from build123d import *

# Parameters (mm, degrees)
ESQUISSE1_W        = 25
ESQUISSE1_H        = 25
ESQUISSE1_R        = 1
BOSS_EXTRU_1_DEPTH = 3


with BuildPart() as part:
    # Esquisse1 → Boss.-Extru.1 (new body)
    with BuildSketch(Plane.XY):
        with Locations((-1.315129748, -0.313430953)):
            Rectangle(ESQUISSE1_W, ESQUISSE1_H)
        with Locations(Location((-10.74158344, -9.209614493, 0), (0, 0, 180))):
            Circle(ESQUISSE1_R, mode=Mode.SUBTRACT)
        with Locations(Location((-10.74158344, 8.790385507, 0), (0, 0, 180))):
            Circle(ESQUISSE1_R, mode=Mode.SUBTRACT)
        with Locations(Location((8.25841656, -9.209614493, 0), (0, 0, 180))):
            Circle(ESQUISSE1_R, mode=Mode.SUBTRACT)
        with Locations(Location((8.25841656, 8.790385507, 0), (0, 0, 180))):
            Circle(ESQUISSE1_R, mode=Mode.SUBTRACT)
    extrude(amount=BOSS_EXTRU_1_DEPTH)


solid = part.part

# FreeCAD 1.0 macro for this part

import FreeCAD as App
import Part
import Sketcher
from FreeCAD import Vector


def add_polygon(sketch, points):
    """Adds a closed chain of lines whose ends are joined by coincident constraints."""
    first, n = sketch.GeometryCount, len(points)
    for a, b in zip(points, points[1:] + points[:1]):
        sketch.addGeometry(Part.LineSegment(App.Vector(*a, 0), App.Vector(*b, 0)), False)
    for i in range(n):
        sketch.addConstraint(Sketcher.Constraint("Coincident", first + i, 2, first + (i + 1) % n, 1))

doc = App.newDocument("Part")
body = doc.addObject("PartDesign::Body", "Body")

# Sketch on XY plane
sketch1 = body.newObject("Sketcher::SketchObject", "Sketch")
sketch1.AttachmentSupport = (doc.getObject("XY_Plane"), [""])
sketch1.MapMode = "FlatFace"
add_polygon(sketch1, [(-13.8, 12.2), (-13.8, -12.8), (11.2, -12.8), (11.2, 12.2)])  # lines 0-3
sketch1.addGeometry(Part.Circle(Vector(-10.7, -9.2, 0), Vector(0, 0, 1), 1), False)  # 4
sketch1.addGeometry(Part.Circle(Vector(8.3, -9.2, 0), Vector(0, 0, 1), 1), False)  # 5
sketch1.addGeometry(Part.Circle(Vector(-10.7, 8.8, 0), Vector(0, 0, 1), 1), False)  # 6
sketch1.addGeometry(Part.Circle(Vector(8.3, 8.8, 0), Vector(0, 0, 1), 1), False)  # 7
sketch1.addConstraint([
    Sketcher.Constraint("Vertical", 0),
    Sketcher.Constraint("Horizontal", 1),
    Sketcher.Constraint("Vertical", 2),
    Sketcher.Constraint("Horizontal", 3),
    Sketcher.Constraint("Equal", 4, 5),
    Sketcher.Constraint("Equal", 5, 6),
    Sketcher.Constraint("Equal", 6, 7),
    Sketcher.Constraint("Horizontal", 4, 3, 5, 3),
    Sketcher.Constraint("Horizontal", 6, 3, 7, 3),
    Sketcher.Constraint("Vertical", 4, 3, 6, 3),
    Sketcher.Constraint("Vertical", 5, 3, 7, 3),
    Sketcher.Constraint("Equal", 3, 0),
    Sketcher.Constraint("Diameter", 4, 2.0),
    Sketcher.Constraint("DistanceX", 1, 1, 1, 2, 25.0),
    Sketcher.Constraint("DistanceX", 4, 3, 5, 3, 19.0),
    Sketcher.Constraint("DistanceY", 4, 3, 6, 3, 18.0),
    Sketcher.Constraint("DistanceX", 0, 2, -1, 1, 13.81513),
    Sketcher.Constraint("DistanceY", 0, 2, -1, 1, 12.813431),
    Sketcher.Constraint("DistanceX", 4, 3, -1, 1, 10.741583),
    Sketcher.Constraint("DistanceY", 4, 3, -1, 1, 9.209614),
])
pad1 = body.newObject("PartDesign::Pad", "Pad")
pad1.Profile = sketch1
pad1.Length = 3

doc.recompute()
